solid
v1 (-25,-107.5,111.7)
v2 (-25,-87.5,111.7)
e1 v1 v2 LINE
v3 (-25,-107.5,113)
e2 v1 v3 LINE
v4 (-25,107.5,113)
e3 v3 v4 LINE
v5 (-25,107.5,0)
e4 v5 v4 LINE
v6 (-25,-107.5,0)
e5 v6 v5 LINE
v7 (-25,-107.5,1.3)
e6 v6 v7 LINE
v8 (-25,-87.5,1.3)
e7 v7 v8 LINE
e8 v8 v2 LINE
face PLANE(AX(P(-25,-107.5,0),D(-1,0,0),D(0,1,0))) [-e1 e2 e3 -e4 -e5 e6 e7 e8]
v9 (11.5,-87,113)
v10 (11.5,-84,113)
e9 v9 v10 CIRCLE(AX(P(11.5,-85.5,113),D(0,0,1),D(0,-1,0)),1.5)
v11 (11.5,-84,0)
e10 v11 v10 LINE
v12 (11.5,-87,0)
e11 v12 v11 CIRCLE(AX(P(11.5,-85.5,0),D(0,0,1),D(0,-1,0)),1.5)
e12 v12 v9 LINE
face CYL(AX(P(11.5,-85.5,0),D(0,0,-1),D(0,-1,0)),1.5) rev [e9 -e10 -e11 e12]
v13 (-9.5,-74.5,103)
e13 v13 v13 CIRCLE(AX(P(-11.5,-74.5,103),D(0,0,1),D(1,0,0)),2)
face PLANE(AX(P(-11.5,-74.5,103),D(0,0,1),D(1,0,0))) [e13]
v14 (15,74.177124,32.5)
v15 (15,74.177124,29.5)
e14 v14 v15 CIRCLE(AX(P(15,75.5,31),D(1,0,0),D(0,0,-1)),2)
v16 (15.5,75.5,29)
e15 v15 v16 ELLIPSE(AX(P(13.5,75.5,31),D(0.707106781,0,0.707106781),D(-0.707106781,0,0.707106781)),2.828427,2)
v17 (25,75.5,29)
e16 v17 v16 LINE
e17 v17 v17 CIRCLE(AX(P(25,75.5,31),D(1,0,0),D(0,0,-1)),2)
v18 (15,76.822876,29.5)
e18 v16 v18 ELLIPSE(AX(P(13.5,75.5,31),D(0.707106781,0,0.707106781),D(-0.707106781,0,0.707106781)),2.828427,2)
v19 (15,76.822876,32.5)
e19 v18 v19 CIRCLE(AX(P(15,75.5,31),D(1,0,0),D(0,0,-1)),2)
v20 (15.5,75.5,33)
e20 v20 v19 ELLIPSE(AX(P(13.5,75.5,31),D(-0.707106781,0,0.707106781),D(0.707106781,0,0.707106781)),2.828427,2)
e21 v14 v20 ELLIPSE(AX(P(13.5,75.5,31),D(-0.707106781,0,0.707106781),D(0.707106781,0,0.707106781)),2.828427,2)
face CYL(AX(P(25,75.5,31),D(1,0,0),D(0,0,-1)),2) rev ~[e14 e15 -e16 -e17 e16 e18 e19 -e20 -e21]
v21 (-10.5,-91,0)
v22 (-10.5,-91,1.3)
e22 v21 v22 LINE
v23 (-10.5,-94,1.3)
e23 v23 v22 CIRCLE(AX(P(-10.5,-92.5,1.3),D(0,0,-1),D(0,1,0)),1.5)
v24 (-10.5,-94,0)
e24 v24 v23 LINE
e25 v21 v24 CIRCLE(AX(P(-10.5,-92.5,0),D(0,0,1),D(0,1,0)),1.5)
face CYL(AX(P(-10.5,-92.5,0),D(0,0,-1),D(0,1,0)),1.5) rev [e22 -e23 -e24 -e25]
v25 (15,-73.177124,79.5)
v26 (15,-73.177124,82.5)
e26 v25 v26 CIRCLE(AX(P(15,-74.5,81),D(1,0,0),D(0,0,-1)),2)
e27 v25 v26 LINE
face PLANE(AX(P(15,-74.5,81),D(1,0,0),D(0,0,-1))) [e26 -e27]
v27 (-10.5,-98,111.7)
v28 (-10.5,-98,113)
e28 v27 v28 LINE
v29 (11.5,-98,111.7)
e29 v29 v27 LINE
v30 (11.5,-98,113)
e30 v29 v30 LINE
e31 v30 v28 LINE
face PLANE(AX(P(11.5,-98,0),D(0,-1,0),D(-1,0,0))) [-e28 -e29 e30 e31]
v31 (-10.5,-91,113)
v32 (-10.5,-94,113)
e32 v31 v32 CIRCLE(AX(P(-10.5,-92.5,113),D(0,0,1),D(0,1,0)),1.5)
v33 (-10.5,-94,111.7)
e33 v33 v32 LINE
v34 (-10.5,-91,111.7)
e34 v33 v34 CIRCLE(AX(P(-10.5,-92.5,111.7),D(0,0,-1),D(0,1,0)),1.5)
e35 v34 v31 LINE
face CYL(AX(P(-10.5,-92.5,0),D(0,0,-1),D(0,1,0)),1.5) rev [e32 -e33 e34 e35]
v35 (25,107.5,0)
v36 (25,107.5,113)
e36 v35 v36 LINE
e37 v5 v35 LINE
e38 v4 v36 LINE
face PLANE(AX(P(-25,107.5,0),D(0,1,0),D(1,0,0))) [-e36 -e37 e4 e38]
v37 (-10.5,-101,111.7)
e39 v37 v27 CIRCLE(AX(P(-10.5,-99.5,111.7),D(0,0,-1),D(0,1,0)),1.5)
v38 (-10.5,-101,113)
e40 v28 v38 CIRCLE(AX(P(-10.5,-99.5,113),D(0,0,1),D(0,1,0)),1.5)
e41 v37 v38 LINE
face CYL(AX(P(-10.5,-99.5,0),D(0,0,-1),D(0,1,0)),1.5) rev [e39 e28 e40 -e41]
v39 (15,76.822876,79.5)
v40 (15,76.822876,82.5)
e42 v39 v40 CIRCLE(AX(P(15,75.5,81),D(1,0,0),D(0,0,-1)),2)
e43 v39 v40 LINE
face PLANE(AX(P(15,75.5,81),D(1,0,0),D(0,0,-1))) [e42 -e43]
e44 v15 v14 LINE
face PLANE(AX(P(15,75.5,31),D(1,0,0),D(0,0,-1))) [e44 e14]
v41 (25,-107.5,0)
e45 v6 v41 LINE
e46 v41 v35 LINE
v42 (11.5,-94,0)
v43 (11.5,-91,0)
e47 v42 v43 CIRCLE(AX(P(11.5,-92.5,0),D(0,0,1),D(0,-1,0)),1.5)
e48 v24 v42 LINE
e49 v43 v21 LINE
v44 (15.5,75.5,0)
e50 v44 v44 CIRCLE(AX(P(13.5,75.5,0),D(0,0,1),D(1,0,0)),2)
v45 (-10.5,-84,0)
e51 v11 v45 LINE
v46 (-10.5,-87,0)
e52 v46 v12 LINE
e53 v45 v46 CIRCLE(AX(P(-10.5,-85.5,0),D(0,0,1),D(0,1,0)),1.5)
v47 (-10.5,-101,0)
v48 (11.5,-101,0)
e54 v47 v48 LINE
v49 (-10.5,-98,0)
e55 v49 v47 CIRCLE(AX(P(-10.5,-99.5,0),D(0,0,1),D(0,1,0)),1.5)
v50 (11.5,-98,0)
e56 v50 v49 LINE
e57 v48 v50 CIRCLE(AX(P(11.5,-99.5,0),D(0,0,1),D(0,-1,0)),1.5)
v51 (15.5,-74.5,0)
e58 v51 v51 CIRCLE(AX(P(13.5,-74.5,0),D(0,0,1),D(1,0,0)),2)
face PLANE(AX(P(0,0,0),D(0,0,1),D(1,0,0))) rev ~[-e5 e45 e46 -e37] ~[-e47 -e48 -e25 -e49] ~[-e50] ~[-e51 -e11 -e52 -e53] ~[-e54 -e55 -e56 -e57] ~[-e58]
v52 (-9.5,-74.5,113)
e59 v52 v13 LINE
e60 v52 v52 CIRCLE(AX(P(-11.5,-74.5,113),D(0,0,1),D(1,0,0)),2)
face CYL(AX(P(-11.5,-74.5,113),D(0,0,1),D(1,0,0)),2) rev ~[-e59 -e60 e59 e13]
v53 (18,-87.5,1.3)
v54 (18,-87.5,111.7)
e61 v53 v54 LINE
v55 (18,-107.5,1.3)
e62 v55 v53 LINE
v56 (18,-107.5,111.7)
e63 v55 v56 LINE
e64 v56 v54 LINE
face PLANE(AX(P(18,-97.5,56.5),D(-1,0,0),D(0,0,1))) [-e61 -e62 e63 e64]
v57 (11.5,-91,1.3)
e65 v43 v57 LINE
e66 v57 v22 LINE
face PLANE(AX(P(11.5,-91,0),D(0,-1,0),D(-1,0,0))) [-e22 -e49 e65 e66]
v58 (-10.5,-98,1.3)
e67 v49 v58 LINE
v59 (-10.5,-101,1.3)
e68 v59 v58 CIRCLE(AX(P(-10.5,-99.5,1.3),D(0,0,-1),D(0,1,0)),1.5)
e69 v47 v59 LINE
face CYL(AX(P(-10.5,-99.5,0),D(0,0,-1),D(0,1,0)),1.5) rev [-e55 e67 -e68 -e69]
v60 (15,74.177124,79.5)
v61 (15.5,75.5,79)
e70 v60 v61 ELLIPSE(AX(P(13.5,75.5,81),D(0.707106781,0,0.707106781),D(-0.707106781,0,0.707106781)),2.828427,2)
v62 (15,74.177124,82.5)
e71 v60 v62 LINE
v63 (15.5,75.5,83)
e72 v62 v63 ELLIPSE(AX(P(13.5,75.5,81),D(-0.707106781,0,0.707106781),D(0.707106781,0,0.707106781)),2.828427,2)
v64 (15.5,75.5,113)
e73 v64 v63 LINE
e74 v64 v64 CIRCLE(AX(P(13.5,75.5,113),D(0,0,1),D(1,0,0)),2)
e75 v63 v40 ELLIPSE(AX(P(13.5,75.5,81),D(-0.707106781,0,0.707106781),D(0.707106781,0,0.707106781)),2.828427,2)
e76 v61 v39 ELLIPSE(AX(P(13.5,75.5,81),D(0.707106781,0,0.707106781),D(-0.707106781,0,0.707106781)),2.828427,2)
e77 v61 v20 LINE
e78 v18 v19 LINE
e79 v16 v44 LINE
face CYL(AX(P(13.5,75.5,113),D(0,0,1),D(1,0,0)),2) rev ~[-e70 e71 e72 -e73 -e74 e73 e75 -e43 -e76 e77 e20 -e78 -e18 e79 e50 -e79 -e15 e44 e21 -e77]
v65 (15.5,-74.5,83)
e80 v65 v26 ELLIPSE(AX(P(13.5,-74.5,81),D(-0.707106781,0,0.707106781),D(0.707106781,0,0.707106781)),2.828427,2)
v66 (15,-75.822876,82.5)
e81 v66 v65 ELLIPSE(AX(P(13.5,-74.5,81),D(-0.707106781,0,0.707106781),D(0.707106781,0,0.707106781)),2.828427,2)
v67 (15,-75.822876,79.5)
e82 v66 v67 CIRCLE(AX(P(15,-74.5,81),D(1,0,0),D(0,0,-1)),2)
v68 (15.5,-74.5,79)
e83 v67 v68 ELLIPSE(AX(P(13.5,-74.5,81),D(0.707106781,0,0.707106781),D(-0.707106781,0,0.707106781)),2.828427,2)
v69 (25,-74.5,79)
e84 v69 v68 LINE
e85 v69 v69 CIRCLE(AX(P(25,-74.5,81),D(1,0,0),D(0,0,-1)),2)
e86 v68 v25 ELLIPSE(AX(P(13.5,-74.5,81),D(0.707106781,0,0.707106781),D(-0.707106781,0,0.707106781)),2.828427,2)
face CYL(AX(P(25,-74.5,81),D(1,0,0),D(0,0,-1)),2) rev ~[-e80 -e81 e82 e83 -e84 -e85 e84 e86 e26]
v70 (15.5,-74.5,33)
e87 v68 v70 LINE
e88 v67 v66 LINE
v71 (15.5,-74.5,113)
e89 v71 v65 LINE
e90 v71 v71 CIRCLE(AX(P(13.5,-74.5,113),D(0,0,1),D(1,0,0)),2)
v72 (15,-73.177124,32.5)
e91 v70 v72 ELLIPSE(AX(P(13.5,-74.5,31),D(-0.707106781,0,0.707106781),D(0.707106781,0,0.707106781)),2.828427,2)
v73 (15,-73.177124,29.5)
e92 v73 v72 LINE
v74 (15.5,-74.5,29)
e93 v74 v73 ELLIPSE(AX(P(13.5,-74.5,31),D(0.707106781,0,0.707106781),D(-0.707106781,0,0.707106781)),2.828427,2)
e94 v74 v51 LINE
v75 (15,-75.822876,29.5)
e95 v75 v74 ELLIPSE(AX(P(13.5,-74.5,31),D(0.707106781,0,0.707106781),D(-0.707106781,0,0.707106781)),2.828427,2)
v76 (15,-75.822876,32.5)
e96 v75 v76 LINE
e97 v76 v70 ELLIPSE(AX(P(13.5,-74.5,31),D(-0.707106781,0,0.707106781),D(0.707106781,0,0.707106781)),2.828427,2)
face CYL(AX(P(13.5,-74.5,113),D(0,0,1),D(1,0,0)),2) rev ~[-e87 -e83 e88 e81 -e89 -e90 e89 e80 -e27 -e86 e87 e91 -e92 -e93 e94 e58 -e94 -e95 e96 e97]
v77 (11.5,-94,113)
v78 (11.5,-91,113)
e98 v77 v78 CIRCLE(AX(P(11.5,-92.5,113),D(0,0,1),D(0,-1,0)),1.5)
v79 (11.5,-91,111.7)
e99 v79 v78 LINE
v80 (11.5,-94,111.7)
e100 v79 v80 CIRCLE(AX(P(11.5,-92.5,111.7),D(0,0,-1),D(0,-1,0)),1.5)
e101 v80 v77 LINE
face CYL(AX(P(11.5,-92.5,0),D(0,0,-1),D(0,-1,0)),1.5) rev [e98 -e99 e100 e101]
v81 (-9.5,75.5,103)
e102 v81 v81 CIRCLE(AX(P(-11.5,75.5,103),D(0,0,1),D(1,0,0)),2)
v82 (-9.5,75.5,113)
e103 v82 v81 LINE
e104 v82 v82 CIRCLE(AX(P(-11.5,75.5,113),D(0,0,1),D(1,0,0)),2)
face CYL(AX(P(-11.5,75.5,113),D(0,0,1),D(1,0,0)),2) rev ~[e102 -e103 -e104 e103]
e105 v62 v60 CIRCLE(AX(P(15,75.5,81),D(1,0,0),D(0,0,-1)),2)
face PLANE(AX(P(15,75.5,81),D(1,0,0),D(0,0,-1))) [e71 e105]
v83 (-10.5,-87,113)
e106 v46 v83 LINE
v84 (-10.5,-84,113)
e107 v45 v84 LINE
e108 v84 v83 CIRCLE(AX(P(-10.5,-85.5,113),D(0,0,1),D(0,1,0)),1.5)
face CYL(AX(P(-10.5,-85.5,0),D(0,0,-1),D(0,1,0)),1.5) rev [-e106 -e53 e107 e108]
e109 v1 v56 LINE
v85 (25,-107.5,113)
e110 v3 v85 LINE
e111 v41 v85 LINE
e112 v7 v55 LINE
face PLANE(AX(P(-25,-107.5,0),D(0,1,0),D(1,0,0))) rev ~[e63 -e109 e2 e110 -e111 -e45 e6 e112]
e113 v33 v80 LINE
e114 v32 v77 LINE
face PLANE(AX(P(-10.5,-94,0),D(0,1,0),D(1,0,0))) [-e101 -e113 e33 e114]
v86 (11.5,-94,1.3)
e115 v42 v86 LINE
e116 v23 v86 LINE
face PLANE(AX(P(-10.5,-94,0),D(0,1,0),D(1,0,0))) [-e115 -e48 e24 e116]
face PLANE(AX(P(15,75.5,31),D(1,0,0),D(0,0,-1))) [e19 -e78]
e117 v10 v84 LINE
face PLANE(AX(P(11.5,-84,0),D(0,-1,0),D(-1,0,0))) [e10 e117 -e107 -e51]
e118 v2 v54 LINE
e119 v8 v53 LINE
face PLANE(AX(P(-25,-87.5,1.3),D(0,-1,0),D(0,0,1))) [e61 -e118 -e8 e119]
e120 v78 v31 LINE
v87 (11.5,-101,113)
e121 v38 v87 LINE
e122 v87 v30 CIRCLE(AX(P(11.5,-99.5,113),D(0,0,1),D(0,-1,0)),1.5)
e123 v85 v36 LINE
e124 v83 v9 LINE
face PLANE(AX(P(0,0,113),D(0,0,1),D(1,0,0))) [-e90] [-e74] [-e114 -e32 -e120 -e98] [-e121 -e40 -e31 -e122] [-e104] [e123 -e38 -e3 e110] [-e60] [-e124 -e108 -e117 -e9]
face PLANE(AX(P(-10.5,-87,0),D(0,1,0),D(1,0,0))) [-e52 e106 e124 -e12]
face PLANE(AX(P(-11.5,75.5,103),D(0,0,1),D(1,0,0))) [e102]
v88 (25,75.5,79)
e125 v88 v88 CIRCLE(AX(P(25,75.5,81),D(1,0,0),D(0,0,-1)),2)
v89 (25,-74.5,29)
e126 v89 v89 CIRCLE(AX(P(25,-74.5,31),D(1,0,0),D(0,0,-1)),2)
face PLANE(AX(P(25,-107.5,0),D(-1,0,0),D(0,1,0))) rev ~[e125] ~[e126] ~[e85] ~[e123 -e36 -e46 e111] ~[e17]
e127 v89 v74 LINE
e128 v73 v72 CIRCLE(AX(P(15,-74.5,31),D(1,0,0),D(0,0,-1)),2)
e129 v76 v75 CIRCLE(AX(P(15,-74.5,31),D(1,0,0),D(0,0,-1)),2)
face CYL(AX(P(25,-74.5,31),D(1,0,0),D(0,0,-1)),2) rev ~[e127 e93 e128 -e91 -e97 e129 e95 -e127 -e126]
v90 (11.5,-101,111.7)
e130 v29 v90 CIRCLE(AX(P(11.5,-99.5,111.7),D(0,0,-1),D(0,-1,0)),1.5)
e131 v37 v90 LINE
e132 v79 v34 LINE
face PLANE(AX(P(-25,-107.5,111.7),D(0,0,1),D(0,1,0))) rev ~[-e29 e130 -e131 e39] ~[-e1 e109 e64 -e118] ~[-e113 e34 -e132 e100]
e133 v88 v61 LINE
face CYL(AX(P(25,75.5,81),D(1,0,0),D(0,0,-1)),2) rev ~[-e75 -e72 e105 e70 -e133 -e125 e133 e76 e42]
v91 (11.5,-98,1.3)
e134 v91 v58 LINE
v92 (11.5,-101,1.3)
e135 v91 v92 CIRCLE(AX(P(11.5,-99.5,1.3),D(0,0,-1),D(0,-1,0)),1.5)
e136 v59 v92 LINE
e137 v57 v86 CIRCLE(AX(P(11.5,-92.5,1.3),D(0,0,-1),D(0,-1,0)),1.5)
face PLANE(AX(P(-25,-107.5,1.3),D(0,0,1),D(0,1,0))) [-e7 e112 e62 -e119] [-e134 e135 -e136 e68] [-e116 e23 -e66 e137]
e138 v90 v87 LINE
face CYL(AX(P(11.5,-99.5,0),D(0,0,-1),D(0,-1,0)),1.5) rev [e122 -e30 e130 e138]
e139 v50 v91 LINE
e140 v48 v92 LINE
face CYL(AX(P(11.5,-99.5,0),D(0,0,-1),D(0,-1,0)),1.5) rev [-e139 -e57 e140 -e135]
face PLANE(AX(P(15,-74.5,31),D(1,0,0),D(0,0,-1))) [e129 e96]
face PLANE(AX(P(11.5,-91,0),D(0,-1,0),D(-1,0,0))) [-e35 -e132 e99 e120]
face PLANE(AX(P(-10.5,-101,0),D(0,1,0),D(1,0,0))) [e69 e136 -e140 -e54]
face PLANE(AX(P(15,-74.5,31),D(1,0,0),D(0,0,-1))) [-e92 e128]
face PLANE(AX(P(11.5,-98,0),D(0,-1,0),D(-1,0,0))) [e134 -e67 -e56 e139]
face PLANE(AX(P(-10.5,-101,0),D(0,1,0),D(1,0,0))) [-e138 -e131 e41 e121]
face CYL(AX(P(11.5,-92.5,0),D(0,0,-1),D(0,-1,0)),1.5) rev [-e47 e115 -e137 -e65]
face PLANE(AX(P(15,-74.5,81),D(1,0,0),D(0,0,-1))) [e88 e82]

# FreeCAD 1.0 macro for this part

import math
import FreeCAD as App
import Part
import Sketcher

V = App.Vector

doc = App.newDocument("Part")
body = doc.addObject("PartDesign::Body", "Body")

# Sketch on XY plane
sketch1 = body.newObject("Sketcher::SketchObject", "Sketch")
sketch1.AttachmentSupport = (doc.getObject("XY_Plane"), [""])
sketch1.MapMode = "FlatFace"
sketch1.addGeometry([
    Part.LineSegment(V(-25, 108, 0), V(-25, -108, 0)),
    Part.LineSegment(V(-25, -108, 0), V(25, -108, 0)),
    Part.LineSegment(V(25, -108, 0), V(25, 108, 0)),
    Part.LineSegment(V(25, 108, 0), V(-25, 108, 0)),
], False)
sketch1.addConstraint([
    Sketcher.Constraint("Coincident", 0, 2, 1, 1),
    Sketcher.Constraint("Coincident", 1, 2, 2, 1),
    Sketcher.Constraint("Coincident", 2, 2, 3, 1),
    Sketcher.Constraint("Coincident", 3, 2, 0, 1),
    Sketcher.Constraint("Vertical", 0),
    Sketcher.Constraint("Horizontal", 1),
    Sketcher.Constraint("Vertical", 2),
    Sketcher.Constraint("Horizontal", 3),
    Sketcher.Constraint("Symmetric", 0, 2, 2, 2, -1, 1),
    Sketcher.Constraint("DistanceX", 1, 1, 1, 2, 50.0),
    Sketcher.Constraint("DistanceY", 0, 2, 0, 1, 215.0),
])
pad1 = body.newObject("PartDesign::Pad", "Pad")
pad1.Profile = sketch1
pad1.Length = 113

# Sketch on XY plane
sketch2 = body.newObject("Sketcher::SketchObject", "Sketch001")
sketch2.AttachmentSupport = (doc.getObject("XY_Plane"), [""])
sketch2.MapMode = "FlatFace"
sketch2.addGeometry([
    Part.LineSegment(V(-10.5, -98, 0), V(11.5, -98, 0)),  # 0
    Part.ArcOfCircle(Part.Circle(V(11.5, -99.5, 0), V(0, 0, 1), 1.5), math.radians(-90), math.radians(90)),  # 1
    Part.LineSegment(V(11.5, -101, 0), V(-10.5, -101, 0)),  # 2
    Part.ArcOfCircle(Part.Circle(V(-10.5, -99.5, 0), V(0, 0, 1), 1.5), math.radians(90), math.radians(270)),  # 3
    Part.LineSegment(V(-10.5, -91, 0), V(11.5, -91, 0)),  # 4
    Part.ArcOfCircle(Part.Circle(V(11.5, -92.5, 0), V(0, 0, 1), 1.5), math.radians(-90), math.radians(90)),  # 5
    Part.LineSegment(V(11.5, -94, 0), V(-10.5, -94, 0)),  # 6
    Part.ArcOfCircle(Part.Circle(V(-10.5, -92.5, 0), V(0, 0, 1), 1.5), math.radians(90), math.radians(270)),  # 7
    Part.LineSegment(V(-10.5, -84, 0), V(11.5, -84, 0)),  # 8
    Part.ArcOfCircle(Part.Circle(V(11.5, -85.5, 0), V(0, 0, 1), 1.5), math.radians(-90), math.radians(90)),  # 9
    Part.LineSegment(V(11.5, -87, 0), V(-10.5, -87, 0)),  # 10
    Part.ArcOfCircle(Part.Circle(V(-10.5, -85.5, 0), V(0, 0, 1), 1.5), math.radians(90), math.radians(270)),  # 11
], False)
sketch2.addConstraint([
    Sketcher.Constraint("Tangent", 0, 2, 1, 2),
    Sketcher.Constraint("Tangent", 1, 1, 2, 1),
    Sketcher.Constraint("Tangent", 2, 2, 3, 2),
    Sketcher.Constraint("Tangent", 3, 1, 0, 1),
    Sketcher.Constraint("Tangent", 4, 2, 5, 2),
    Sketcher.Constraint("Tangent", 5, 1, 6, 1),
    Sketcher.Constraint("Tangent", 6, 2, 7, 2),
    Sketcher.Constraint("Tangent", 7, 1, 4, 1),
    Sketcher.Constraint("Tangent", 8, 2, 9, 2),
    Sketcher.Constraint("Tangent", 9, 1, 10, 1),
    Sketcher.Constraint("Tangent", 10, 2, 11, 2),
    Sketcher.Constraint("Tangent", 11, 1, 8, 1),
    Sketcher.Constraint("Horizontal", 0),
    Sketcher.Constraint("Horizontal", 2),
    Sketcher.Constraint("Horizontal", 4),
    Sketcher.Constraint("Horizontal", 6),
    Sketcher.Constraint("Horizontal", 8),
    Sketcher.Constraint("Horizontal", 10),
    Sketcher.Constraint("Equal", 3, 5),
    Sketcher.Constraint("Equal", 7, 9),
    Sketcher.Constraint("Vertical", 1, 3, 5, 3),
    Sketcher.Constraint("Vertical", 3, 3, 7, 3),
    Sketcher.Constraint("Vertical", 5, 3, 9, 3),
    Sketcher.Constraint("Vertical", 7, 3, 11, 3),
    Sketcher.Constraint("Radius", 1, 1.5),
    Sketcher.Constraint("DistanceX", 0, 1, 0, 2, 22.0),
    Sketcher.Constraint("DistanceY", 0, 2, -1, 1, 98.0),
    Sketcher.Constraint("DistanceY", 4, 2, -1, 1, 91.0),
    Sketcher.Constraint("DistanceY", 8, 2, -1, 1, 84.0),
    Sketcher.Constraint("DistanceX", -1, 1, 1, 3, 11.5),
])
pocket1 = body.newObject("PartDesign::Pocket", "Pocket")
pocket1.Profile = sketch2
pocket1.Length = 113
pocket1.Reversed = True

# Sketch on YZ plane
sketch3 = body.newObject("Sketcher::SketchObject", "Sketch002")
sketch3.AttachmentSupport = (doc.getObject("YZ_Plane"), [""])
sketch3.MapMode = "FlatFace"
sketch3.AttachmentOffset = App.Placement(V(0, 0, -25), App.Rotation())
sketch3.addGeometry([
    Part.LineSegment(V(-88, 1, 0), V(-108, 1, 0)),
    Part.LineSegment(V(-108, 1, 0), V(-108, 112, 0)),
    Part.LineSegment(V(-108, 112, 0), V(-88, 112, 0)),
    Part.LineSegment(V(-88, 112, 0), V(-88, 1, 0)),
], False)
sketch3.addConstraint([
    Sketcher.Constraint("Coincident", 0, 2, 1, 1),
    Sketcher.Constraint("Coincident", 1, 2, 2, 1),
    Sketcher.Constraint("Coincident", 2, 2, 3, 1),
    Sketcher.Constraint("Coincident", 3, 2, 0, 1),
    Sketcher.Constraint("Horizontal", 0),
    Sketcher.Constraint("Vertical", 1),
    Sketcher.Constraint("Horizontal", 2),
    Sketcher.Constraint("Vertical", 3),
    Sketcher.Constraint("DistanceX", 0, 2, 0, 1, 20.0),
    Sketcher.Constraint("DistanceY", 1, 1, 1, 2, 110.4),
    Sketcher.Constraint("DistanceX", 0, 2, -1, 1, 107.5),
    Sketcher.Constraint("DistanceY", -1, 1, 0, 2, 1.3),
])
pocket2 = body.newObject("PartDesign::Pocket", "Pocket001")
pocket2.Profile = sketch3
pocket2.Length = 43
pocket2.Reversed = True

# Sketch on XY plane
sketch4 = body.newObject("Sketcher::SketchObject", "Sketch003")
sketch4.AttachmentSupport = (doc.getObject("XY_Plane"), [""])
sketch4.MapMode = "FlatFace"
sketch4.AttachmentOffset = App.Placement(V(0, 0, 113), App.Rotation())
sketch4.addGeometry([
    Part.Circle(V(13.5, -74.5, 0), V(0, 0, 1), 2),
    Part.Circle(V(13.5, 75.5, 0), V(0, 0, 1), 2),
], False)
sketch4.addConstraint([
    Sketcher.Constraint("Equal", 0, 1),
    Sketcher.Constraint("Vertical", 0, 3, 1, 3),
    Sketcher.Constraint("Diameter", 0, 4.0),
    Sketcher.Constraint("DistanceY", 0, 3, 1, 3, 150.0),
    Sketcher.Constraint("DistanceX", -1, 1, 0, 3, 13.5),
    Sketcher.Constraint("DistanceY", 0, 3, -1, 1, 74.5),
])
pocket3 = body.newObject("PartDesign::Pocket", "Pocket002")
pocket3.Profile = sketch4
pocket3.Length = 113

# Sketch on XY plane
sketch5 = body.newObject("Sketcher::SketchObject", "Sketch004")
sketch5.AttachmentSupport = (doc.getObject("XY_Plane"), [""])
sketch5.MapMode = "FlatFace"
sketch5.AttachmentOffset = App.Placement(V(0, 0, 113), App.Rotation())
sketch5.addGeometry([
    Part.Circle(V(-11.5, 75.5, 0), V(0, 0, 1), 2),
    Part.Circle(V(-11.5, -74.5, 0), V(0, 0, 1), 2),
], False)
sketch5.addConstraint([
    Sketcher.Constraint("Equal", 0, 1),
    Sketcher.Constraint("Vertical", 0, 3, 1, 3),
    Sketcher.Constraint("Diameter", 0, 4.0),
    Sketcher.Constraint("DistanceY", 1, 3, 0, 3, 150.0),
    Sketcher.Constraint("DistanceX", 0, 3, -1, 1, 11.5),
    Sketcher.Constraint("DistanceY", -1, 1, 0, 3, 75.5),
])
pocket4 = body.newObject("PartDesign::Pocket", "Pocket003")
pocket4.Profile = sketch5
pocket4.Length = 10

# Sketch on YZ plane
sketch6 = body.newObject("Sketcher::SketchObject", "Sketch005")
sketch6.AttachmentSupport = (doc.getObject("YZ_Plane"), [""])
sketch6.MapMode = "FlatFace"
sketch6.AttachmentOffset = App.Placement(V(0, 0, 25), App.Rotation())
sketch6.addGeometry([
    Part.Circle(V(-74.5, 31, 0), V(0, 0, 1), 2),
    Part.Circle(V(-74.5, 81, 0), V(0, 0, 1), 2),
    Part.Circle(V(75.5, 31, 0), V(0, 0, 1), 2),
    Part.Circle(V(75.5, 81, 0), V(0, 0, 1), 2),
], False)
sketch6.addConstraint([
    Sketcher.Constraint("Equal", 0, 1),
    Sketcher.Constraint("Equal", 1, 2),
    Sketcher.Constraint("Equal", 2, 3),
    Sketcher.Constraint("Horizontal", 0, 3, 2, 3),
    Sketcher.Constraint("Horizontal", 1, 3, 3, 3),
    Sketcher.Constraint("Vertical", 0, 3, 1, 3),
    Sketcher.Constraint("Vertical", 2, 3, 3, 3),
    Sketcher.Constraint("Diameter", 0, 4.0),
    Sketcher.Constraint("DistanceY", -1, 1, 0, 3, 31.0),
    Sketcher.Constraint("DistanceY", -1, 1, 1, 3, 81.0),
    Sketcher.Constraint("DistanceX", 0, 3, 2, 3, 150.0),
    Sketcher.Constraint("DistanceX", 0, 3, -1, 1, 74.5),
])
pocket5 = body.newObject("PartDesign::Pocket", "Pocket004")
pocket5.Profile = sketch6
pocket5.Length = 10

doc.recompute()
